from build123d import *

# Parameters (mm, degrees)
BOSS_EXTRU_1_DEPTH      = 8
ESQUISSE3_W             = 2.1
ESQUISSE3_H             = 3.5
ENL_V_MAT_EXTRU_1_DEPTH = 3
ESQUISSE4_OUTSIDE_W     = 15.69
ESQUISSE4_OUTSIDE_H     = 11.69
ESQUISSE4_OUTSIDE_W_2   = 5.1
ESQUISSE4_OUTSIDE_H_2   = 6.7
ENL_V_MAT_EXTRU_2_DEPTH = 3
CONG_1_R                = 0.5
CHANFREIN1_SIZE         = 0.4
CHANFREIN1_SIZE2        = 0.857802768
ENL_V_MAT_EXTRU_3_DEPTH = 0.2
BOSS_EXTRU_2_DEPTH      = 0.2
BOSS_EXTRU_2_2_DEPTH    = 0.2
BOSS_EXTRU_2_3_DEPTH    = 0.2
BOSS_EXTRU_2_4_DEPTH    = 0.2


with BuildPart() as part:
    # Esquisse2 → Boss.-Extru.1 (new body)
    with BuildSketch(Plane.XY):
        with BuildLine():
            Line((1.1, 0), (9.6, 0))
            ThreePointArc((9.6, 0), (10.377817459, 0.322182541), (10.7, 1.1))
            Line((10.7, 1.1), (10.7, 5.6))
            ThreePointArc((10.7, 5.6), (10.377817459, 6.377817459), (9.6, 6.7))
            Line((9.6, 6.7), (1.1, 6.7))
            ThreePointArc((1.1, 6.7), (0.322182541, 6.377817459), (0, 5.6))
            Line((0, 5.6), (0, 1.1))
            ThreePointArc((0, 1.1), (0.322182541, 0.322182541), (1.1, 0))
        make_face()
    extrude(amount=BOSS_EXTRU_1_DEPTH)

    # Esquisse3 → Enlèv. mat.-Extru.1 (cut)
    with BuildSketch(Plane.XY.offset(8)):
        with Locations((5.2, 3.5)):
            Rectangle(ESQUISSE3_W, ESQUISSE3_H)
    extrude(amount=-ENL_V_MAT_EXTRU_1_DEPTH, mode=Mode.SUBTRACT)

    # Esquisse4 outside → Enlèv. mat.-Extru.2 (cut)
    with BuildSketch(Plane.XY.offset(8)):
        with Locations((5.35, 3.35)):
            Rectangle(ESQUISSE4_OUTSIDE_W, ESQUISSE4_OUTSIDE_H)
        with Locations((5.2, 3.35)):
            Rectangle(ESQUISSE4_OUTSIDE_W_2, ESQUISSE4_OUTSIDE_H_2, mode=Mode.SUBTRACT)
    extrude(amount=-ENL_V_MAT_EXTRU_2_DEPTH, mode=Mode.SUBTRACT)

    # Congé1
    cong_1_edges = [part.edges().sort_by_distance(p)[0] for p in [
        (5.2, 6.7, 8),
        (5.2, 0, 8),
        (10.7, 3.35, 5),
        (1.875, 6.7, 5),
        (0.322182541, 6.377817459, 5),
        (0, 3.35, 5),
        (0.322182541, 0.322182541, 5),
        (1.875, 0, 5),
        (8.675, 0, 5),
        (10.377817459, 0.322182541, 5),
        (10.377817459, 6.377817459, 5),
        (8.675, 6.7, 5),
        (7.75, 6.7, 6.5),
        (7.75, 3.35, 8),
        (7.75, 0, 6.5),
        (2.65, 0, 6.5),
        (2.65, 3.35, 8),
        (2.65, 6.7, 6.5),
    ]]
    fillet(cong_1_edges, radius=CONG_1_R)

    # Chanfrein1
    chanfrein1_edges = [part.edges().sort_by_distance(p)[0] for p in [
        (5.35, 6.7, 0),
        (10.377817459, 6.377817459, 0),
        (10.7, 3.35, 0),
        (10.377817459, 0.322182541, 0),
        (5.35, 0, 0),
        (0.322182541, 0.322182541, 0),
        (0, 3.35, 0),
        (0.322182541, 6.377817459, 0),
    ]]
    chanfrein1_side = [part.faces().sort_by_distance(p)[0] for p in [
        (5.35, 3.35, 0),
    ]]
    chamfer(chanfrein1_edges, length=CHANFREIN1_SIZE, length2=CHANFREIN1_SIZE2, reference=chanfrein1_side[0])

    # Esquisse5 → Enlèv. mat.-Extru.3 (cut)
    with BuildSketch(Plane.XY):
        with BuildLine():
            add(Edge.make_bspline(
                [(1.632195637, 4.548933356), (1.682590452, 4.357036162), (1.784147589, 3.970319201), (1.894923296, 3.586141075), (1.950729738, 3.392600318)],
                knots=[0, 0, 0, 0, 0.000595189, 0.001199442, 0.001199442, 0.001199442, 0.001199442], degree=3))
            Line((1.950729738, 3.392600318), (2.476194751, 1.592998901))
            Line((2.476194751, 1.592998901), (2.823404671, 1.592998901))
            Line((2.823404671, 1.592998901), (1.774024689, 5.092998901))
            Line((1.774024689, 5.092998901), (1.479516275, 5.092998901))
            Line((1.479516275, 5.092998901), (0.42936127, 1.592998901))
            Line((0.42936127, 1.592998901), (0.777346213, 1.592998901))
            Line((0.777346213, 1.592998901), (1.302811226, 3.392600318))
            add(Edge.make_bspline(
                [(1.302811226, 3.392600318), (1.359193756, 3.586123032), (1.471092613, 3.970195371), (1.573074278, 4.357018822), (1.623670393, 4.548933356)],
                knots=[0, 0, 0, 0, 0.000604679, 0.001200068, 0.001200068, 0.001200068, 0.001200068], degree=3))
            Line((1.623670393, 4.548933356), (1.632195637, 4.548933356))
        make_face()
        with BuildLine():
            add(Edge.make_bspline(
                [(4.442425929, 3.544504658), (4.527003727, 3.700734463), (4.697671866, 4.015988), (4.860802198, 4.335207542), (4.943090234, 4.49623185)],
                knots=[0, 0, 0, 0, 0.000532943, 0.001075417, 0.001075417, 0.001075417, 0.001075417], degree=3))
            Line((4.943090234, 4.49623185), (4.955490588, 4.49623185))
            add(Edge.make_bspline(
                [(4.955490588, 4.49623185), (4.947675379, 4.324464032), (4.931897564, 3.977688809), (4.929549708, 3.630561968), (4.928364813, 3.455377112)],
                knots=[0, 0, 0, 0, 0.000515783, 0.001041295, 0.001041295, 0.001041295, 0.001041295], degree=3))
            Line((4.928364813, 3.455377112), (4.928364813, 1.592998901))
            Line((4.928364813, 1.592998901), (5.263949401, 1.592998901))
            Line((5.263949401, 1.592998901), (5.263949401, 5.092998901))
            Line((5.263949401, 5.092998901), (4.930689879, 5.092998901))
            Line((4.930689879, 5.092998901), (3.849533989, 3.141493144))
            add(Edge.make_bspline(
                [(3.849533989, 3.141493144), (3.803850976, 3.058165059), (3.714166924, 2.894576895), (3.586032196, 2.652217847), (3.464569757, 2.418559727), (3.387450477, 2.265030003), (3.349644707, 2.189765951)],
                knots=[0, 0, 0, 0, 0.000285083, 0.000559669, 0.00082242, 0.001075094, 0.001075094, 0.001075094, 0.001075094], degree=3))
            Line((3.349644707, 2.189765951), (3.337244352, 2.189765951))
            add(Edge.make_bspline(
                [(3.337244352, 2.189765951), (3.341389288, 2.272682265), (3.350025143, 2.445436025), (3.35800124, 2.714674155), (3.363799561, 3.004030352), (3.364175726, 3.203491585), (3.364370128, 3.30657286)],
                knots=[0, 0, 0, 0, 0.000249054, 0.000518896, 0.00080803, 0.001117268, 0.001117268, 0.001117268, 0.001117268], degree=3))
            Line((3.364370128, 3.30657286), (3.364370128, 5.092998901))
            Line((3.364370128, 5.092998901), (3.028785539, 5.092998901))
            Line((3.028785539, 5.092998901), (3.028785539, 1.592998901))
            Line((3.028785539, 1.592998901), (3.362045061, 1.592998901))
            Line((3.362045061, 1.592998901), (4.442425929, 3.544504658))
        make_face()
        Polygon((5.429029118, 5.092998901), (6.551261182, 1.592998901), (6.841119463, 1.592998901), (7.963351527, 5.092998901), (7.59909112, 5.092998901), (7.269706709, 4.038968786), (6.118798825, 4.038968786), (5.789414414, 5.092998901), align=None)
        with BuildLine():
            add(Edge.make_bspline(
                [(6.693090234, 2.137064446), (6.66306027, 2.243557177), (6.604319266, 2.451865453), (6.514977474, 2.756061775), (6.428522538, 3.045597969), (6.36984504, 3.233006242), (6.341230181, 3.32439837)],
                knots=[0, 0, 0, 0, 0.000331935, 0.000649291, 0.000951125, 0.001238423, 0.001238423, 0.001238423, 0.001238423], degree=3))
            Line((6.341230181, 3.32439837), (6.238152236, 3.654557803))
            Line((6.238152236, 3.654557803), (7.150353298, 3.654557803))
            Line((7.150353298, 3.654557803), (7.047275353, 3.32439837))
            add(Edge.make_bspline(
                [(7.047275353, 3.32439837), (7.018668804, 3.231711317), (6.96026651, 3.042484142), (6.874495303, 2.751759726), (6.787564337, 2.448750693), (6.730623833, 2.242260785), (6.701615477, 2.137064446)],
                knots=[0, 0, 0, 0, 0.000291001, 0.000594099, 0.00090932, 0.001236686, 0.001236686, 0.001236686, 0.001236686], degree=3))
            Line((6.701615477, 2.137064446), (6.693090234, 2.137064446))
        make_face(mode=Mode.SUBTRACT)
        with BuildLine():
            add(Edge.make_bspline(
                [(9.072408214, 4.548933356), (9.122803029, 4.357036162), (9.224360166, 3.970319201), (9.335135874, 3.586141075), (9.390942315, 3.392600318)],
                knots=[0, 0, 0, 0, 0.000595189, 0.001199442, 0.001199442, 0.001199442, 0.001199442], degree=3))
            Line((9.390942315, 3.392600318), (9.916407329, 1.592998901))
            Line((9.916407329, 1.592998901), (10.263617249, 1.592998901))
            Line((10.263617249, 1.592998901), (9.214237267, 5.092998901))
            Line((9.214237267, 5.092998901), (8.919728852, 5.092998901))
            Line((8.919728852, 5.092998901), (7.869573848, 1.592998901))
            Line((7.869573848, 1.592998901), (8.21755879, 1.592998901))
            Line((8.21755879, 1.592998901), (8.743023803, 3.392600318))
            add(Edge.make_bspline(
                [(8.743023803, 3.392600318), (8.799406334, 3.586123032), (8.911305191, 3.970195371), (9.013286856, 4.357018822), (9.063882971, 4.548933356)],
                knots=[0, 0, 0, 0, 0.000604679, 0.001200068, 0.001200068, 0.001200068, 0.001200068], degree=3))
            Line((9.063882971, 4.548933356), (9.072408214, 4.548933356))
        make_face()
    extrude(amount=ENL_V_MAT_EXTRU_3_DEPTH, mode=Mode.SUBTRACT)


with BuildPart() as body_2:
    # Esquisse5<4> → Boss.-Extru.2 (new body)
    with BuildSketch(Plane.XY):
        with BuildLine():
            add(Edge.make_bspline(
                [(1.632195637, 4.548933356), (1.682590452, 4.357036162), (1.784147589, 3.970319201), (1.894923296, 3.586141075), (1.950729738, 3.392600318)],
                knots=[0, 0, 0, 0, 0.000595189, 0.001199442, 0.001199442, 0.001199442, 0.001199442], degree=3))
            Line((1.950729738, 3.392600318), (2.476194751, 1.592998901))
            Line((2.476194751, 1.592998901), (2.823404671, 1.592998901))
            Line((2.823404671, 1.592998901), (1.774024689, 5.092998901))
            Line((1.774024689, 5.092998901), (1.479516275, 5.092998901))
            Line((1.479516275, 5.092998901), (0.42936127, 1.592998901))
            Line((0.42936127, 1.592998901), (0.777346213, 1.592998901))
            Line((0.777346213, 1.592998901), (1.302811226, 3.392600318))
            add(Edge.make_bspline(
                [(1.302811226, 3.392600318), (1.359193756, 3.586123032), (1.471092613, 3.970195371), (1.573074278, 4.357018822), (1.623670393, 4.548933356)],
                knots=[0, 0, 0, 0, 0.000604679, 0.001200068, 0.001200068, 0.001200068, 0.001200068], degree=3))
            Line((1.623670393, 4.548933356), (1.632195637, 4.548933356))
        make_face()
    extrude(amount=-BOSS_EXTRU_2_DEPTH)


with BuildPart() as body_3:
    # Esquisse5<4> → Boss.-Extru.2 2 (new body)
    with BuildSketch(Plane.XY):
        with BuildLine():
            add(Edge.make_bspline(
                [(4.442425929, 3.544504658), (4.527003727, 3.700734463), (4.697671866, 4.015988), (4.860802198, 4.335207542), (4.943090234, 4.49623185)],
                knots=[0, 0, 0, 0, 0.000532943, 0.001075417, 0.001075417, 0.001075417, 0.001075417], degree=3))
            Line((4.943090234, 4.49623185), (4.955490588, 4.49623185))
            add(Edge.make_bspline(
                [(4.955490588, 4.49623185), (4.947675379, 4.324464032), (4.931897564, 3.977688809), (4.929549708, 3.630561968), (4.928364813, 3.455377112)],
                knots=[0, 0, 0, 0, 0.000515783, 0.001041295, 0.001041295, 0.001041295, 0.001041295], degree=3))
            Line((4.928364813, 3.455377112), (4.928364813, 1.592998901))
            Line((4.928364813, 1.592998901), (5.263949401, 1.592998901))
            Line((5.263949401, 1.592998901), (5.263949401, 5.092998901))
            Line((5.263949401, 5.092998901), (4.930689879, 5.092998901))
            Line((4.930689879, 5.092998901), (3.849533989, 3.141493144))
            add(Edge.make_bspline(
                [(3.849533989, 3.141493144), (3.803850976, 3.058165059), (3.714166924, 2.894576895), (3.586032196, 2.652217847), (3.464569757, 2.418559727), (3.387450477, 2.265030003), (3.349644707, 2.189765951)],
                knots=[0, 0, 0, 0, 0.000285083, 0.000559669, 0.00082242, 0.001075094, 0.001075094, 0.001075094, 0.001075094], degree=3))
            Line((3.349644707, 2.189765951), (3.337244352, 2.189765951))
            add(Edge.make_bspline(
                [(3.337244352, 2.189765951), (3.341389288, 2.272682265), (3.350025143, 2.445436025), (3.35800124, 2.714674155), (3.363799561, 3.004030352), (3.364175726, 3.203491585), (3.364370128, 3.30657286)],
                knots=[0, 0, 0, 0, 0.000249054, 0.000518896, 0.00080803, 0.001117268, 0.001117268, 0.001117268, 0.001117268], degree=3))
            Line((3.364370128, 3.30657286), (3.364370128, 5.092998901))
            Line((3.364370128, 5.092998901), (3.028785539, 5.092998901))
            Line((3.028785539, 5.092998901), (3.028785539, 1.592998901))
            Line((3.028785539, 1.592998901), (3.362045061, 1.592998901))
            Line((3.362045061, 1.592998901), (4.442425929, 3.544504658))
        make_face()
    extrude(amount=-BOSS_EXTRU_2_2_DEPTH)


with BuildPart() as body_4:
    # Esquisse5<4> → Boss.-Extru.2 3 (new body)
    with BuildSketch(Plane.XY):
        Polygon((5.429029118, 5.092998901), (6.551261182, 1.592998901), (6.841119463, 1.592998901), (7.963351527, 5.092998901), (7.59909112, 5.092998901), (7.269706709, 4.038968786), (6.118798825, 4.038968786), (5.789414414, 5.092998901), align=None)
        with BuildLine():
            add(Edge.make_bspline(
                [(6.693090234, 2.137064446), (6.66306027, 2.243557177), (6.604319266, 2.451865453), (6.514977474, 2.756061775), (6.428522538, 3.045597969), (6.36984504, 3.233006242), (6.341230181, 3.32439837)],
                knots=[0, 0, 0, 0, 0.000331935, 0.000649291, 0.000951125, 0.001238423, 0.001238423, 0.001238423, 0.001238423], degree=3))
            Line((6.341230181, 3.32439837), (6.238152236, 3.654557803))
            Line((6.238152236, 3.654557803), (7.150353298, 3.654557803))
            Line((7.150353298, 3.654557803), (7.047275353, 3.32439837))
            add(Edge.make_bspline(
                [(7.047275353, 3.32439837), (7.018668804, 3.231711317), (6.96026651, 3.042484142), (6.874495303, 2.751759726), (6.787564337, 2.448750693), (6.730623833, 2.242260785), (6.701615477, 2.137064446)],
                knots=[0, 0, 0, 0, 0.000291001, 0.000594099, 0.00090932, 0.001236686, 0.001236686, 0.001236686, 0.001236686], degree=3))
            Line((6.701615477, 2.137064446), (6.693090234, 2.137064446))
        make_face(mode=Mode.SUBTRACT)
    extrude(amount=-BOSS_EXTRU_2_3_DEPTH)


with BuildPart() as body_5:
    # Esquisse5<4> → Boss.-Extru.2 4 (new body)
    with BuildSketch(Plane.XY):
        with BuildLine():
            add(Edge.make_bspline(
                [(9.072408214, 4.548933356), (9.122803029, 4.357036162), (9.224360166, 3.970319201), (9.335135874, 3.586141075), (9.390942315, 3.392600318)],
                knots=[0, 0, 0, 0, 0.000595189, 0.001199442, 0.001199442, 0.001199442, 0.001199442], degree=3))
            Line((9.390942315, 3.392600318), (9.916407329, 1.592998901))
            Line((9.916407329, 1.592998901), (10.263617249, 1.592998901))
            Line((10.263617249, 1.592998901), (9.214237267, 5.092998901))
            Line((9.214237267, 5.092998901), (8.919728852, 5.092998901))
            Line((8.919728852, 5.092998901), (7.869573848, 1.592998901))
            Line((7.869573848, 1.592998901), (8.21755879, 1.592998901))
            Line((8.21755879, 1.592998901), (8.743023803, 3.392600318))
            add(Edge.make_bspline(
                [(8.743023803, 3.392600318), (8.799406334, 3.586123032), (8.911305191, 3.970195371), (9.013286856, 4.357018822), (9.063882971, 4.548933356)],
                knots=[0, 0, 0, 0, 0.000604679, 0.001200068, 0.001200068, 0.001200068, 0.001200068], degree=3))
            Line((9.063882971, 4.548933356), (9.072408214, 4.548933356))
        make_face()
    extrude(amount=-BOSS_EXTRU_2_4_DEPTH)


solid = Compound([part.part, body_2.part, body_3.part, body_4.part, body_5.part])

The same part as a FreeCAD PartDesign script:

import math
import FreeCAD as App
import Part
import Sketcher


def edges_at(feature, points):
    """Names of the edges that pass closest to the given points."""
    edges = feature.Shape.Edges
    near = lambda p: min(range(len(edges)), key=lambda i: edges[i].distToShape(Part.Vertex(*p))[0])
    return sorted({f"Edge{near(p) + 1}" for p in points})

doc = App.newDocument("Part")
params = doc.addObject("Spreadsheet::Sheet", "Params")
for row, (alias, value) in enumerate([
    ("sketch1_radius", "1.1 mm"),
    ("sketch1_width", "8.5 mm"),
    ("sketch1_height", "4.5 mm"),
    ("pad1_length", "8 mm"),
    ("sketch2_width", "2.1 mm"),
    ("sketch2_height", "3.5 mm"),
    ("pocket1_length", "3 mm"),
    ("sketch3_width", "5.1 mm"),
    ("sketch3_height", "6.7 mm"),
    ("sketch3_width2", "15.69 mm"),
    ("sketch3_height2", "11.69 mm"),
    ("pocket2_length", "3 mm"),
    ("fillet_radius", "0.5 mm"),
    ("chamfer_size", "0.4 mm"),
    ("chamfer_size2", "0.857803 mm"),
    ("sketch4_height", "3.5 mm"),
    ("sketch4_height2", "3.5 mm"),
    ("pocket3_length", "0.2 mm"),
    ("pad2_length", "0.2 mm"),
    ("sketch6_height", "3.5 mm"),
    ("pad3_length", "0.2 mm"),
    ("pad4_length", "0.2 mm"),
    ("pad5_length", "0.2 mm"),
], start=1):
    params.set(f"A{row}", alias)
    params.set(f"B{row}", "=" + value)
    params.setAlias(f"B{row}", alias)

body = doc.addObject("PartDesign::Body", "Body")

# Sketch on XY plane
sketch1 = doc.addObject("Sketcher::SketchObject", "Sketch")
body.addObject(sketch1)
sketch1.AttachmentSupport = (doc.XY_Plane, [""])
sketch1.MapMode = "FlatFace"
sketch1.addGeometry([
    Part.LineSegment(App.Vector(1.1, 0, 0), App.Vector(9.6, 0, 0)),  # 0
    Part.ArcOfCircle(Part.Circle(App.Vector(9.6, 1.1, 0), App.Vector(0, 0, 1), 1.1), math.radians(-90), math.radians(0)),  # 1
    Part.LineSegment(App.Vector(10.7, 1.1, 0), App.Vector(10.7, 5.6, 0)),  # 2
    Part.ArcOfCircle(Part.Circle(App.Vector(9.6, 5.6, 0), App.Vector(0, 0, 1), 1.1), math.radians(0), math.radians(90)),  # 3
    Part.LineSegment(App.Vector(9.6, 6.7, 0), App.Vector(1.1, 6.7, 0)),  # 4
    Part.ArcOfCircle(Part.Circle(App.Vector(1.1, 5.6, 0), App.Vector(0, 0, 1), 1.1), math.radians(90), math.radians(180)),  # 5
    Part.LineSegment(App.Vector(0, 5.6, 0), App.Vector(0, 1.1, 0)),  # 6
    Part.ArcOfCircle(Part.Circle(App.Vector(1.1, 1.1, 0), App.Vector(0, 0, 1), 1.1), math.radians(-180), math.radians(-90)),  # 7
], False)
sketch1.addConstraint([
    Sketcher.Constraint("Tangent", 0, 2, 1, 1),
    Sketcher.Constraint("Tangent", 1, 2, 2, 1),
    Sketcher.Constraint("Tangent", 2, 2, 3, 1),
    Sketcher.Constraint("Tangent", 3, 2, 4, 1),
    Sketcher.Constraint("Tangent", 4, 2, 5, 1),
    Sketcher.Constraint("Tangent", 5, 2, 6, 1),
    Sketcher.Constraint("Tangent", 6, 2, 7, 1),
    Sketcher.Constraint("Tangent", 7, 2, 0, 1),
    Sketcher.Constraint("Horizontal", 0),
    Sketcher.Constraint("Vertical", 2),
    Sketcher.Constraint("Horizontal", 4),
    Sketcher.Constraint("Vertical", 6),
    Sketcher.Constraint("Equal", 1, 3),
    Sketcher.Constraint("Equal", 3, 5),
    Sketcher.Constraint("Equal", 5, 7),
    Sketcher.Constraint("PointOnObject", 0, 2, -1),
    Sketcher.Constraint("PointOnObject", 5, 2, -2),
    Sketcher.Constraint("Radius", 1, 1.1),
    Sketcher.Constraint("DistanceX", 0, 1, 0, 2, 8.5),
    Sketcher.Constraint("DistanceY", 2, 1, 2, 2, 4.5),
])
sketch1.setExpression("Constraints[17]", "Params.sketch1_radius")
sketch1.setExpression("Constraints[18]", "Params.sketch1_width")
sketch1.setExpression("Constraints[19]", "Params.sketch1_height")
pad1 = doc.addObject("PartDesign::Pad", "Pad")
body.addObject(pad1)
pad1.Profile = sketch1
pad1.setExpression("Length", "Params.pad1_length")

# Sketch on XY plane
sketch2 = doc.addObject("Sketcher::SketchObject", "Sketch001")
body.addObject(sketch2)
sketch2.AttachmentSupport = (doc.XY_Plane, [""])
sketch2.MapMode = "FlatFace"
sketch2.AttachmentOffset = App.Placement(App.Vector(0, 0, 8), App.Rotation())
sketch2.addGeometry([
    Part.LineSegment(App.Vector(4.15, 5.25, 0), App.Vector(4.15, 1.75, 0)),
    Part.LineSegment(App.Vector(4.15, 1.75, 0), App.Vector(6.25, 1.75, 0)),
    Part.LineSegment(App.Vector(6.25, 1.75, 0), App.Vector(6.25, 5.25, 0)),
    Part.LineSegment(App.Vector(6.25, 5.25, 0), App.Vector(4.15, 5.25, 0)),
], False)
sketch2.addConstraint([
    Sketcher.Constraint("Coincident", 0, 2, 1, 1),
    Sketcher.Constraint("Coincident", 1, 2, 2, 1),
    Sketcher.Constraint("Coincident", 2, 2, 3, 1),
    Sketcher.Constraint("Coincident", 3, 2, 0, 1),
    Sketcher.Constraint("Vertical", 0),
    Sketcher.Constraint("Horizontal", 1),
    Sketcher.Constraint("Vertical", 2),
    Sketcher.Constraint("Horizontal", 3),
    Sketcher.Constraint("DistanceX", 1, 1, 1, 2, 2.1),
    Sketcher.Constraint("DistanceY", 0, 2, 0, 1, 3.5),
    Sketcher.Constraint("DistanceX", -1, 1, 0, 2, 4.15),
    Sketcher.Constraint("DistanceY", -1, 1, 0, 2, 1.75),
])
sketch2.setExpression("Constraints[8]", "Params.sketch2_width")
sketch2.setExpression("Constraints[9]", "Params.sketch2_height")
pocket1 = doc.addObject("PartDesign::Pocket", "Pocket")
body.addObject(pocket1)
pocket1.Profile = sketch2
pocket1.setExpression("Length", "Params.pocket1_length")

# Sketch on XY plane
sketch3 = doc.addObject("Sketcher::SketchObject", "Sketch002")
body.addObject(sketch3)
sketch3.AttachmentSupport = (doc.XY_Plane, [""])
sketch3.MapMode = "FlatFace"
sketch3.AttachmentOffset = App.Placement(App.Vector(0, 0, 8), App.Rotation())
sketch3.addGeometry([
    Part.LineSegment(App.Vector(-2.495, 9.195, 0), App.Vector(-2.495, -2.495, 0)),  # 0
    Part.LineSegment(App.Vector(-2.495, -2.495, 0), App.Vector(13.195, -2.495, 0)),  # 1
    Part.LineSegment(App.Vector(13.195, -2.495, 0), App.Vector(13.195, 9.195, 0)),  # 2
    Part.LineSegment(App.Vector(13.195, 9.195, 0), App.Vector(-2.495, 9.195, 0)),  # 3
    Part.LineSegment(App.Vector(7.75, 0, 0), App.Vector(2.65, 0, 0)),  # 4
    Part.LineSegment(App.Vector(2.65, 0, 0), App.Vector(2.65, 6.7, 0)),  # 5
    Part.LineSegment(App.Vector(2.65, 6.7, 0), App.Vector(7.75, 6.7, 0)),  # 6
    Part.LineSegment(App.Vector(7.75, 6.7, 0), App.Vector(7.75, 0, 0)),  # 7
], False)
sketch3.addConstraint([
    Sketcher.Constraint("Coincident", 0, 2, 1, 1),
    Sketcher.Constraint("Coincident", 1, 2, 2, 1),
    Sketcher.Constraint("Coincident", 2, 2, 3, 1),
    Sketcher.Constraint("Coincident", 3, 2, 0, 1),
    Sketcher.Constraint("Coincident", 4, 2, 5, 1),
    Sketcher.Constraint("Coincident", 5, 2, 6, 1),
    Sketcher.Constraint("Coincident", 6, 2, 7, 1),
    Sketcher.Constraint("Coincident", 7, 2, 4, 1),
    Sketcher.Constraint("Vertical", 0),
    Sketcher.Constraint("Horizontal", 1),
    Sketcher.Constraint("Vertical", 2),
    Sketcher.Constraint("Horizontal", 3),
    Sketcher.Constraint("Horizontal", 4),
    Sketcher.Constraint("Vertical", 5),
    Sketcher.Constraint("Horizontal", 6),
    Sketcher.Constraint("Vertical", 7),
    Sketcher.Constraint("PointOnObject", 4, 2, -1),
    Sketcher.Constraint("DistanceX", 4, 2, 4, 1, 5.1),
    Sketcher.Constraint("DistanceY", 5, 1, 5, 2, 6.7),
    Sketcher.Constraint("DistanceX", 1, 1, 1, 2, 15.69),
    Sketcher.Constraint("DistanceY", 0, 2, 0, 1, 11.69),
    Sketcher.Constraint("DistanceX", -1, 1, 4, 2, 2.65),
    Sketcher.Constraint("DistanceX", 0, 2, -1, 1, 2.495),
    Sketcher.Constraint("DistanceY", 0, 2, -1, 1, 2.495),
])
sketch3.setExpression("Constraints[17]", "Params.sketch3_width")
sketch3.setExpression("Constraints[18]", "Params.sketch3_height")
sketch3.setExpression("Constraints[19]", "Params.sketch3_width2")
sketch3.setExpression("Constraints[20]", "Params.sketch3_height2")
pocket2 = doc.addObject("PartDesign::Pocket", "Pocket001")
body.addObject(pocket2)
pocket2.Profile = sketch3
pocket2.setExpression("Length", "Params.pocket2_length")
doc.recompute()

fillet = doc.addObject("PartDesign::Fillet", "Fillet")
body.addObject(fillet)
fillet.Base = (pocket2, edges_at(pocket2, [
    (5.2, 6.7, 8),
    (5.2, 0, 8),
    (10.7, 3.35, 5),
    (1.875, 6.7, 5),
    (0.322, 6.378, 5),
    (0, 3.35, 5),
    (0.322, 0.322, 5),
    (1.875, 0, 5),
    (8.675, 0, 5),
    (10.378, 0.322, 5),
    (10.378, 6.378, 5),
    (8.675, 6.7, 5),
    (7.75, 6.7, 6.5),
    (7.75, 3.35, 8),
    (7.75, 0, 6.5),
    (2.65, 0, 6.5),
    (2.65, 3.35, 8),
    (2.65, 6.7, 6.5),
]))
fillet.setExpression("Radius", "Params.fillet_radius")
doc.recompute()

chamfer = doc.addObject("PartDesign::Chamfer", "Chamfer")
body.addObject(chamfer)
chamfer.Base = (fillet, edges_at(fillet, [
    (5.35, 6.7, 0),
    (10.378, 6.378, 0),
    (10.7, 3.35, 0),
    (10.378, 0.322, 0),
    (5.35, 0, 0),
    (0.322, 0.322, 0),
    (0, 3.35, 0),
    (0.322, 6.378, 0),
]))
chamfer.ChamferType = "Two distances"
chamfer.setExpression("Size", "Params.chamfer_size")
chamfer.setExpression("Size2", "Params.chamfer_size2")

# Sketch on XY plane
sketch4 = doc.addObject("Sketcher::SketchObject", "Sketch003")
body.addObject(sketch4)
sketch4.AttachmentSupport = (doc.XY_Plane, [""])
sketch4.MapMode = "FlatFace"
sketch4.addGeometry([
    Part.BSplineCurve([App.Vector(1.632196, 4.548933, 0), App.Vector(1.68259, 4.357036, 0), App.Vector(1.784148, 3.970319, 0), App.Vector(1.894923, 3.586141, 0), App.Vector(1.95073, 3.3926, 0)], [4, 1, 4], [0, 0.000595189, 0.001199442], False, 3, [1, 1, 1, 1, 1], False),  # 0
    Part.LineSegment(App.Vector(1.95073, 3.3926, 0), App.Vector(2.476195, 1.592999, 0)),  # 1
    Part.LineSegment(App.Vector(2.476195, 1.592999, 0), App.Vector(2.823405, 1.592999, 0)),  # 2
    Part.LineSegment(App.Vector(2.823405, 1.592999, 0), App.Vector(1.774025, 5.092999, 0)),  # 3
    Part.LineSegment(App.Vector(1.774025, 5.092999, 0), App.Vector(1.479516, 5.092999, 0)),  # 4
    Part.LineSegment(App.Vector(1.479516, 5.092999, 0), App.Vector(0.429361, 1.592999, 0)),  # 5
    Part.LineSegment(App.Vector(0.429361, 1.592999, 0), App.Vector(0.777346, 1.592999, 0)),  # 6
    Part.LineSegment(App.Vector(0.777346, 1.592999, 0), App.Vector(1.302811, 3.3926, 0)),  # 7
    Part.BSplineCurve([App.Vector(1.302811, 3.3926, 0), App.Vector(1.359194, 3.586123, 0), App.Vector(1.471093, 3.970195, 0), App.Vector(1.573074, 4.357019, 0), App.Vector(1.62367, 4.548933, 0)], [4, 1, 4], [0, 0.000604679, 0.001200068], False, 3, [1, 1, 1, 1, 1], False),  # 8
    Part.LineSegment(App.Vector(1.62367, 4.548933, 0), App.Vector(1.632196, 4.548933, 0)),  # 9
    Part.BSplineCurve([App.Vector(4.442426, 3.544505, 0), App.Vector(4.527004, 3.700734, 0), App.Vector(4.697672, 4.015988, 0), App.Vector(4.860802, 4.335208, 0), App.Vector(4.94309, 4.496232, 0)], [4, 1, 4], [0, 0.000532943, 0.001075417], False, 3, [1, 1, 1, 1, 1], False),  # 10
    Part.LineSegment(App.Vector(4.94309, 4.496232, 0), App.Vector(4.955491, 4.496232, 0)),  # 11
    Part.BSplineCurve([App.Vector(4.955491, 4.496232, 0), App.Vector(4.947675, 4.324464, 0), App.Vector(4.931898, 3.977689, 0), App.Vector(4.92955, 3.630562, 0), App.Vector(4.928365, 3.455377, 0)], [4, 1, 4], [0, 0.000515783, 0.001041295], False, 3, [1, 1, 1, 1, 1], False),  # 12
    Part.LineSegment(App.Vector(4.928365, 3.455377, 0), App.Vector(4.928365, 1.592999, 0)),  # 13
    Part.LineSegment(App.Vector(4.928365, 1.592999, 0), App.Vector(5.263949, 1.592999, 0)),  # 14
    Part.LineSegment(App.Vector(5.263949, 1.592999, 0), App.Vector(5.263949, 5.092999, 0)),  # 15
    Part.LineSegment(App.Vector(5.263949, 5.092999, 0), App.Vector(4.93069, 5.092999, 0)),  # 16
    Part.LineSegment(App.Vector(4.93069, 5.092999, 0), App.Vector(3.849534, 3.141493, 0)),  # 17
    Part.BSplineCurve([App.Vector(3.849534, 3.141493, 0), App.Vector(3.803851, 3.058165, 0), App.Vector(3.714167, 2.894577, 0), App.Vector(3.586032, 2.652218, 0), App.Vector(3.46457, 2.41856, 0), App.Vector(3.38745, 2.26503, 0), App.Vector(3.349645, 2.189766, 0)], [4, 1, 1, 1, 4], [0, 0.000285083, 0.000559669, 0.00082242, 0.001075094], False, 3, [1, 1, 1, 1, 1, 1, 1], False),  # 18
    Part.LineSegment(App.Vector(3.349645, 2.189766, 0), App.Vector(3.337244, 2.189766, 0)),  # 19
    Part.BSplineCurve([App.Vector(3.337244, 2.189766, 0), App.Vector(3.341389, 2.272682, 0), App.Vector(3.350025, 2.445436, 0), App.Vector(3.358001, 2.714674, 0), App.Vector(3.3638, 3.00403, 0), App.Vector(3.364176, 3.203492, 0), App.Vector(3.36437, 3.306573, 0)], [4, 1, 1, 1, 4], [0, 0.000249054, 0.000518896, 0.00080803, 0.001117268], False, 3, [1, 1, 1, 1, 1, 1, 1], False),  # 20
    Part.LineSegment(App.Vector(3.36437, 3.306573, 0), App.Vector(3.36437, 5.092999, 0)),  # 21
    Part.LineSegment(App.Vector(3.36437, 5.092999, 0), App.Vector(3.028786, 5.092999, 0)),  # 22
    Part.LineSegment(App.Vector(3.028786, 5.092999, 0), App.Vector(3.028786, 1.592999, 0)),  # 23
    Part.LineSegment(App.Vector(3.028786, 1.592999, 0), App.Vector(3.362045, 1.592999, 0)),  # 24
    Part.LineSegment(App.Vector(3.362045, 1.592999, 0), App.Vector(4.442426, 3.544505, 0)),  # 25
    Part.LineSegment(App.Vector(5.429029, 5.092999, 0), App.Vector(6.551261, 1.592999, 0)),  # 26
    Part.LineSegment(App.Vector(6.551261, 1.592999, 0), App.Vector(6.841119, 1.592999, 0)),  # 27
    Part.LineSegment(App.Vector(6.841119, 1.592999, 0), App.Vector(7.963352, 5.092999, 0)),  # 28
    Part.LineSegment(App.Vector(7.963352, 5.092999, 0), App.Vector(7.599091, 5.092999, 0)),  # 29
    Part.LineSegment(App.Vector(7.599091, 5.092999, 0), App.Vector(7.269707, 4.038969, 0)),  # 30
    Part.LineSegment(App.Vector(7.269707, 4.038969, 0), App.Vector(6.118799, 4.038969, 0)),  # 31
    Part.LineSegment(App.Vector(6.118799, 4.038969, 0), App.Vector(5.789414, 5.092999, 0)),  # 32
    Part.LineSegment(App.Vector(5.789414, 5.092999, 0), App.Vector(5.429029, 5.092999, 0)),  # 33
    Part.LineSegment(App.Vector(6.701615, 2.137064, 0), App.Vector(6.69309, 2.137064, 0)),  # 34
    Part.BSplineCurve([App.Vector(6.69309, 2.137064, 0), App.Vector(6.66306, 2.243557, 0), App.Vector(6.604319, 2.451865, 0), App.Vector(6.514977, 2.756062, 0), App.Vector(6.428523, 3.045598, 0), App.Vector(6.369845, 3.233006, 0), App.Vector(6.34123, 3.324398, 0)], [4, 1, 1, 1, 4], [0, 0.000331935, 0.000649291, 0.000951125, 0.001238423], False, 3, [1, 1, 1, 1, 1, 1, 1], False),  # 35
    Part.LineSegment(App.Vector(6.34123, 3.324398, 0), App.Vector(6.238152, 3.654558, 0)),  # 36
    Part.LineSegment(App.Vector(6.238152, 3.654558, 0), App.Vector(7.150353, 3.654558, 0)),  # 37
    Part.LineSegment(App.Vector(7.150353, 3.654558, 0), App.Vector(7.047275, 3.324398, 0)),  # 38
    Part.BSplineCurve([App.Vector(7.047275, 3.324398, 0), App.Vector(7.018669, 3.231711, 0), App.Vector(6.960267, 3.042484, 0), App.Vector(6.874495, 2.75176, 0), App.Vector(6.787564, 2.448751, 0), App.Vector(6.730624, 2.242261, 0), App.Vector(6.701615, 2.137064, 0)], [4, 1, 1, 1, 4], [0, 0.000291001, 0.000594099, 0.00090932, 0.001236686], False, 3, [1, 1, 1, 1, 1, 1, 1], False),  # 39
    Part.BSplineCurve([App.Vector(9.072408, 4.548933, 0), App.Vector(9.122803, 4.357036, 0), App.Vector(9.22436, 3.970319, 0), App.Vector(9.335136, 3.586141, 0), App.Vector(9.390942, 3.3926, 0)], [4, 1, 4], [0, 0.000595189, 0.001199442], False, 3, [1, 1, 1, 1, 1], False),  # 40
    Part.LineSegment(App.Vector(9.390942, 3.3926, 0), App.Vector(9.916407, 1.592999, 0)),  # 41
    Part.LineSegment(App.Vector(9.916407, 1.592999, 0), App.Vector(10.263617, 1.592999, 0)),  # 42
    Part.LineSegment(App.Vector(10.263617, 1.592999, 0), App.Vector(9.214237, 5.092999, 0)),  # 43
    Part.LineSegment(App.Vector(9.214237, 5.092999, 0), App.Vector(8.919729, 5.092999, 0)),  # 44
    Part.LineSegment(App.Vector(8.919729, 5.092999, 0), App.Vector(7.869574, 1.592999, 0)),  # 45
    Part.LineSegment(App.Vector(7.869574, 1.592999, 0), App.Vector(8.217559, 1.592999, 0)),  # 46
    Part.LineSegment(App.Vector(8.217559, 1.592999, 0), App.Vector(8.743024, 3.3926, 0)),  # 47
    Part.BSplineCurve([App.Vector(8.743024, 3.3926, 0), App.Vector(8.799406, 3.586123, 0), App.Vector(8.911305, 3.970195, 0), App.Vector(9.013287, 4.357019, 0), App.Vector(9.063883, 4.548933, 0)], [4, 1, 4], [0, 0.000604679, 0.001200068], False, 3, [1, 1, 1, 1, 1], False),  # 48
    Part.LineSegment(App.Vector(9.063883, 4.548933, 0), App.Vector(9.072408, 4.548933, 0)),  # 49
], False)
sketch4.addConstraint([
    Sketcher.Constraint("Block", 0),
    Sketcher.Constraint("Block", 8),
    Sketcher.Constraint("Block", 10),
    Sketcher.Constraint("Block", 12),
    Sketcher.Constraint("Block", 18),
    Sketcher.Constraint("Block", 20),
    Sketcher.Constraint("Block", 35),
    Sketcher.Constraint("Block", 39),
    Sketcher.Constraint("Block", 40),
    Sketcher.Constraint("Block", 48),
    Sketcher.Constraint("Coincident", 0, 2, 1, 1),
    Sketcher.Constraint("Coincident", 1, 2, 2, 1),
    Sketcher.Constraint("Coincident", 2, 2, 3, 1),
    Sketcher.Constraint("Coincident", 3, 2, 4, 1),
    Sketcher.Constraint("Coincident", 4, 2, 5, 1),
    Sketcher.Constraint("Coincident", 5, 2, 6, 1),
    Sketcher.Constraint("Coincident", 6, 2, 7, 1),
    Sketcher.Constraint("Coincident", 7, 2, 8, 1),
    Sketcher.Constraint("Coincident", 8, 2, 9, 1),
    Sketcher.Constraint("Coincident", 9, 2, 0, 1),
    Sketcher.Constraint("Coincident", 10, 2, 11, 1),
    Sketcher.Constraint("Coincident", 11, 2, 12, 1),
    Sketcher.Constraint("Coincident", 12, 2, 13, 1),
    Sketcher.Constraint("Coincident", 13, 2, 14, 1),
    Sketcher.Constraint("Coincident", 14, 2, 15, 1),
    Sketcher.Constraint("Coincident", 15, 2, 16, 1),
    Sketcher.Constraint("Coincident", 16, 2, 17, 1),
    Sketcher.Constraint("Coincident", 17, 2, 18, 1),
    Sketcher.Constraint("Coincident", 18, 2, 19, 1),
    Sketcher.Constraint("Coincident", 19, 2, 20, 1),
    Sketcher.Constraint("Coincident", 20, 2, 21, 1),
    Sketcher.Constraint("Coincident", 21, 2, 22, 1),
    Sketcher.Constraint("Coincident", 22, 2, 23, 1),
    Sketcher.Constraint("Coincident", 23, 2, 24, 1),
    Sketcher.Constraint("Coincident", 24, 2, 25, 1),
    Sketcher.Constraint("Coincident", 25, 2, 10, 1),
    Sketcher.Constraint("Coincident", 26, 2, 27, 1),
    Sketcher.Constraint("Coincident", 27, 2, 28, 1),
    Sketcher.Constraint("Coincident", 28, 2, 29, 1),
    Sketcher.Constraint("Coincident", 29, 2, 30, 1),
    Sketcher.Constraint("Coincident", 30, 2, 31, 1),
    Sketcher.Constraint("Coincident", 31, 2, 32, 1),
    Sketcher.Constraint("Coincident", 32, 2, 33, 1),
    Sketcher.Constraint("Coincident", 33, 2, 26, 1),
    Sketcher.Constraint("Coincident", 34, 2, 35, 1),
    Sketcher.Constraint("Coincident", 35, 2, 36, 1),
    Sketcher.Constraint("Coincident", 36, 2, 37, 1),
    Sketcher.Constraint("Coincident", 37, 2, 38, 1),
    Sketcher.Constraint("Coincident", 38, 2, 39, 1),
    Sketcher.Constraint("Coincident", 39, 2, 34, 1),
    Sketcher.Constraint("Coincident", 40, 2, 41, 1),
    Sketcher.Constraint("Coincident", 41, 2, 42, 1),
    Sketcher.Constraint("Coincident", 42, 2, 43, 1),
    Sketcher.Constraint("Coincident", 43, 2, 44, 1),
    Sketcher.Constraint("Coincident", 44, 2, 45, 1),
    Sketcher.Constraint("Coincident", 45, 2, 46, 1),
    Sketcher.Constraint("Coincident", 46, 2, 47, 1),
    Sketcher.Constraint("Coincident", 47, 2, 48, 1),
    Sketcher.Constraint("Coincident", 48, 2, 49, 1),
    Sketcher.Constraint("Coincident", 49, 2, 40, 1),
    Sketcher.Constraint("Horizontal", 2),
    Sketcher.Constraint("Horizontal", 4),
    Sketcher.Constraint("Horizontal", 6),
    Sketcher.Constraint("Vertical", 13),
    Sketcher.Constraint("Horizontal", 14),
    Sketcher.Constraint("Vertical", 15),
    Sketcher.Constraint("Horizontal", 16),
    Sketcher.Constraint("Vertical", 21),
    Sketcher.Constraint("Horizontal", 22),
    Sketcher.Constraint("Vertical", 23),
    Sketcher.Constraint("Horizontal", 24),
    Sketcher.Constraint("Horizontal", 27),
    Sketcher.Constraint("Horizontal", 29),
    Sketcher.Constraint("Horizontal", 31),
    Sketcher.Constraint("Horizontal", 33),
    Sketcher.Constraint("Horizontal", 37),
    Sketcher.Constraint("Horizontal", 42),
    Sketcher.Constraint("Horizontal", 44),
    Sketcher.Constraint("Horizontal", 46),
    Sketcher.Constraint("DistanceY", 15, 1, 15, 2, 3.5),
    Sketcher.Constraint("DistanceY", 23, 2, 23, 1, 3.5),
    Sketcher.Constraint("DistanceY", 1, 2, 3, 2, 3.5),
    Sketcher.Constraint("DistanceY", 5, 2, 4, 2, 3.5),
    Sketcher.Constraint("DistanceY", 27, 2, 28, 2, 3.5),
    Sketcher.Constraint("DistanceX", 37, 1, 37, 2, 0.912201),
    Sketcher.Constraint("DistanceY", -1, 1, 1, 2, 1.592999),
    Sketcher.Constraint("DistanceY", -1, 1, 13, 2, 1.592999),
    Sketcher.Constraint("DistanceY", -1, 1, 21, 2, 5.092999),
    Sketcher.Constraint("DistanceY", -1, 1, 26, 2, 1.592999),
    Sketcher.Constraint("DistanceY", -1, 1, 32, 2, 5.092999),
    Sketcher.Constraint("DistanceY", -1, 1, 41, 2, 1.592999),
    Sketcher.Constraint("DistanceY", -1, 1, 43, 2, 5.092999),
    Sketcher.Constraint("DistanceY", -1, 1, 45, 2, 1.592999),
    Sketcher.Constraint("DistanceX", 9, 2, 1, 2, 0.843999),
    Sketcher.Constraint("DistanceX", 2, 1, 2, 2, 0.34721),
    Sketcher.Constraint("DistanceX", 4, 2, 4, 1, 0.294508),
    Sketcher.Constraint("DistanceX", 16, 2, 16, 1, 0.33326),
    Sketcher.Constraint("DistanceX", 24, 1, 24, 2, 0.33326),
    Sketcher.Constraint("DistanceX", 27, 1, 27, 2, 0.289858),
    Sketcher.Constraint("DistanceX", 29, 2, 29, 1, 0.36426),
    Sketcher.Constraint("DistanceX", 42, 1, 42, 2, 0.34721),
    Sketcher.Constraint("DistanceX", 44, 2, 44, 1, 0.294508),
    Sketcher.Constraint("DistanceX", -1, 1, 31, 2, 6.118799),
    Sketcher.Constraint("DistanceX", 16, 2, 11, 2, 0.024801),
    Sketcher.Constraint("DistanceX", 19, 2, 24, 2, 0.024801),
    Sketcher.Constraint("DistanceX", 16, 2, 29, 2, 2.668401),
    Sketcher.Constraint("DistanceX", 38, 2, 45, 2, 0.822298),
    Sketcher.Constraint("Distance", 3, 3.653929),
    Sketcher.Constraint("Distance", 5, 3.654152),
    Sketcher.Constraint("Distance", 43, 3.653929),
    Sketcher.Constraint("Distance", 45, 3.654152),
    Sketcher.Constraint("DistanceX", 6, 1, 6, 2, 0.347985),
    Sketcher.Constraint("DistanceX", 31, 2, 31, 1, 1.150908),
    Sketcher.Constraint("DistanceX", 33, 2, 33, 1, 0.360385),
    Sketcher.Constraint("DistanceX", 46, 1, 46, 2, 0.347985),
    Sketcher.Constraint("DistanceX", -1, 1, 26, 2, 6.551261),
    Sketcher.Constraint("DistanceY", -1, 1, 30, 2, 4.038969),
    Sketcher.Constraint("DistanceX", -1, 1, 33, 2, 5.429029),
    Sketcher.Constraint("DistanceY", 36, 2, 31, 2, 0.384411),
    Sketcher.Constraint("DistanceX", 11, 2, 36, 2, 1.282662),
])
sketch4.setExpression("Constraints[79]", "Params.sketch4_height")
sketch4.setExpression("Constraints[80]", "Params.sketch4_height2")
pocket3 = doc.addObject("PartDesign::Pocket", "Pocket002")
body.addObject(pocket3)
pocket3.Profile = sketch4
pocket3.setExpression("Length", "Params.pocket3_length")
pocket3.Reversed = True
body2 = doc.addObject("PartDesign::Body", "Body001")

# Sketch on XY plane
sketch5 = doc.addObject("Sketcher::SketchObject", "Sketch004")
body2.addObject(sketch5)
sketch5.AttachmentSupport = (doc.getObject("XY_Plane001"), [""])
sketch5.MapMode = "FlatFace"
sketch5.addGeometry([
    Part.BSplineCurve([App.Vector(1.632196, 4.548933, 0), App.Vector(1.68259, 4.357036, 0), App.Vector(1.784148, 3.970319, 0), App.Vector(1.894923, 3.586141, 0), App.Vector(1.95073, 3.3926, 0)], [4, 1, 4], [0, 0.000595189, 0.001199442], False, 3, [1, 1, 1, 1, 1], False),  # 0
    Part.LineSegment(App.Vector(1.95073, 3.3926, 0), App.Vector(2.476195, 1.592999, 0)),  # 1
    Part.LineSegment(App.Vector(2.476195, 1.592999, 0), App.Vector(2.823405, 1.592999, 0)),  # 2
    Part.LineSegment(App.Vector(2.823405, 1.592999, 0), App.Vector(1.774025, 5.092999, 0)),  # 3
    Part.LineSegment(App.Vector(1.774025, 5.092999, 0), App.Vector(1.479516, 5.092999, 0)),  # 4
    Part.LineSegment(App.Vector(1.479516, 5.092999, 0), App.Vector(0.429361, 1.592999, 0)),  # 5
    Part.LineSegment(App.Vector(0.429361, 1.592999, 0), App.Vector(0.777346, 1.592999, 0)),  # 6
    Part.LineSegment(App.Vector(0.777346, 1.592999, 0), App.Vector(1.302811, 3.3926, 0)),  # 7
    Part.BSplineCurve([App.Vector(1.302811, 3.3926, 0), App.Vector(1.359194, 3.586123, 0), App.Vector(1.471093, 3.970195, 0), App.Vector(1.573074, 4.357019, 0), App.Vector(1.62367, 4.548933, 0)], [4, 1, 4], [0, 0.000604679, 0.001200068], False, 3, [1, 1, 1, 1, 1], False),  # 8
    Part.LineSegment(App.Vector(1.62367, 4.548933, 0), App.Vector(1.632196, 4.548933, 0)),  # 9
], False)
sketch5.addConstraint([
    Sketcher.Constraint("Block", 0),
    Sketcher.Constraint("Block", 8),
    Sketcher.Constraint("Coincident", 0, 2, 1, 1),
    Sketcher.Constraint("Coincident", 1, 2, 2, 1),
    Sketcher.Constraint("Coincident", 2, 2, 3, 1),
    Sketcher.Constraint("Coincident", 3, 2, 4, 1),
    Sketcher.Constraint("Coincident", 4, 2, 5, 1),
    Sketcher.Constraint("Coincident", 5, 2, 6, 1),
    Sketcher.Constraint("Coincident", 6, 2, 7, 1),
    Sketcher.Constraint("Coincident", 7, 2, 8, 1),
    Sketcher.Constraint("Coincident", 8, 2, 9, 1),
    Sketcher.Constraint("Coincident", 9, 2, 0, 1),
    Sketcher.Constraint("Horizontal", 2),
    Sketcher.Constraint("Horizontal", 4),
    Sketcher.Constraint("Horizontal", 6),
    Sketcher.Constraint("Horizontal", 2, 2, 5, 2),
    Sketcher.Constraint("Equal", 1, 7),
    Sketcher.Constraint("DistanceY", 1, 2, 3, 2, 3.5),
    Sketcher.Constraint("DistanceY", -1, 1, 1, 2, 1.592999),
    Sketcher.Constraint("DistanceX", 9, 2, 1, 2, 0.843999),
    Sketcher.Constraint("DistanceX", 2, 1, 2, 2, 0.34721),
    Sketcher.Constraint("DistanceX", 4, 2, 4, 1, 0.294508),
    Sketcher.Constraint("Distance", 3, 3.653929),
    Sketcher.Constraint("Distance", 5, 3.654152),
])
pad2 = doc.addObject("PartDesign::Pad", "Pad001")
body2.addObject(pad2)
pad2.Profile = sketch5
pad2.setExpression("Length", "Params.pad2_length")
pad2.Reversed = True
body3 = doc.addObject("PartDesign::Body", "Body002")

# Sketch on XY plane
sketch6 = doc.addObject("Sketcher::SketchObject", "Sketch005")
body3.addObject(sketch6)
sketch6.AttachmentSupport = (doc.getObject("XY_Plane002"), [""])
sketch6.MapMode = "FlatFace"
sketch6.addGeometry([
    Part.BSplineCurve([App.Vector(4.442426, 3.544505, 0), App.Vector(4.527004, 3.700734, 0), App.Vector(4.697672, 4.015988, 0), App.Vector(4.860802, 4.335208, 0), App.Vector(4.94309, 4.496232, 0)], [4, 1, 4], [0, 0.000532943, 0.001075417], False, 3, [1, 1, 1, 1, 1], False),  # 0
    Part.LineSegment(App.Vector(4.94309, 4.496232, 0), App.Vector(4.955491, 4.496232, 0)),  # 1
    Part.BSplineCurve([App.Vector(4.955491, 4.496232, 0), App.Vector(4.947675, 4.324464, 0), App.Vector(4.931898, 3.977689, 0), App.Vector(4.92955, 3.630562, 0), App.Vector(4.928365, 3.455377, 0)], [4, 1, 4], [0, 0.000515783, 0.001041295], False, 3, [1, 1, 1, 1, 1], False),  # 2
    Part.LineSegment(App.Vector(4.928365, 3.455377, 0), App.Vector(4.928365, 1.592999, 0)),  # 3
    Part.LineSegment(App.Vector(4.928365, 1.592999, 0), App.Vector(5.263949, 1.592999, 0)),  # 4
    Part.LineSegment(App.Vector(5.263949, 1.592999, 0), App.Vector(5.263949, 5.092999, 0)),  # 5
    Part.LineSegment(App.Vector(5.263949, 5.092999, 0), App.Vector(4.93069, 5.092999, 0)),  # 6
    Part.LineSegment(App.Vector(4.93069, 5.092999, 0), App.Vector(3.849534, 3.141493, 0)),  # 7
    Part.BSplineCurve([App.Vector(3.849534, 3.141493, 0), App.Vector(3.803851, 3.058165, 0), App.Vector(3.714167, 2.894577, 0), App.Vector(3.586032, 2.652218, 0), App.Vector(3.46457, 2.41856, 0), App.Vector(3.38745, 2.26503, 0), App.Vector(3.349645, 2.189766, 0)], [4, 1, 1, 1, 4], [0, 0.000285083, 0.000559669, 0.00082242, 0.001075094], False, 3, [1, 1, 1, 1, 1, 1, 1], False),  # 8
    Part.LineSegment(App.Vector(3.349645, 2.189766, 0), App.Vector(3.337244, 2.189766, 0)),  # 9
    Part.BSplineCurve([App.Vector(3.337244, 2.189766, 0), App.Vector(3.341389, 2.272682, 0), App.Vector(3.350025, 2.445436, 0), App.Vector(3.358001, 2.714674, 0), App.Vector(3.3638, 3.00403, 0), App.Vector(3.364176, 3.203492, 0), App.Vector(3.36437, 3.306573, 0)], [4, 1, 1, 1, 4], [0, 0.000249054, 0.000518896, 0.00080803, 0.001117268], False, 3, [1, 1, 1, 1, 1, 1, 1], False),  # 10
    Part.LineSegment(App.Vector(3.36437, 3.306573, 0), App.Vector(3.36437, 5.092999, 0)),  # 11
    Part.LineSegment(App.Vector(3.36437, 5.092999, 0), App.Vector(3.028786, 5.092999, 0)),  # 12
    Part.LineSegment(App.Vector(3.028786, 5.092999, 0), App.Vector(3.028786, 1.592999, 0)),  # 13
    Part.LineSegment(App.Vector(3.028786, 1.592999, 0), App.Vector(3.362045, 1.592999, 0)),  # 14
    Part.LineSegment(App.Vector(3.362045, 1.592999, 0), App.Vector(4.442426, 3.544505, 0)),  # 15
], False)
sketch6.addConstraint([
    Sketcher.Constraint("Block", 0),
    Sketcher.Constraint("Block", 2),
    Sketcher.Constraint("Block", 8),
    Sketcher.Constraint("Block", 10),
    Sketcher.Constraint("Coincident", 0, 2, 1, 1),
    Sketcher.Constraint("Coincident", 1, 2, 2, 1),
    Sketcher.Constraint("Coincident", 2, 2, 3, 1),
    Sketcher.Constraint("Coincident", 3, 2, 4, 1),
    Sketcher.Constraint("Coincident", 4, 2, 5, 1),
    Sketcher.Constraint("Coincident", 5, 2, 6, 1),
    Sketcher.Constraint("Coincident", 6, 2, 7, 1),
    Sketcher.Constraint("Coincident", 7, 2, 8, 1),
    Sketcher.Constraint("Coincident", 8, 2, 9, 1),
    Sketcher.Constraint("Coincident", 9, 2, 10, 1),
    Sketcher.Constraint("Coincident", 10, 2, 11, 1),
    Sketcher.Constraint("Coincident", 11, 2, 12, 1),
    Sketcher.Constraint("Coincident", 12, 2, 13, 1),
    Sketcher.Constraint("Coincident", 13, 2, 14, 1),
    Sketcher.Constraint("Coincident", 14, 2, 15, 1),
    Sketcher.Constraint("Coincident", 15, 2, 0, 1),
    Sketcher.Constraint("Vertical", 3),
    Sketcher.Constraint("Horizontal", 4),
    Sketcher.Constraint("Vertical", 5),
    Sketcher.Constraint("Horizontal", 6),
    Sketcher.Constraint("Vertical", 11),
    Sketcher.Constraint("Horizontal", 12),
    Sketcher.Constraint("Vertical", 13),
    Sketcher.Constraint("Horizontal", 14),
    Sketcher.Constraint("Horizontal", 6, 2, 11, 2),
    Sketcher.Constraint("Horizontal", 4, 2, 13, 2),
    Sketcher.Constraint("Equal", 4, 12),
    Sketcher.Constraint("Equal", 6, 14),
    Sketcher.Constraint("DistanceY", 5, 1, 5, 2, 3.5),
    Sketcher.Constraint("DistanceY", -1, 1, 3, 2, 1.592999),
    Sketcher.Constraint("DistanceX", 6, 2, 6, 1, 0.33326),
    Sketcher.Constraint("DistanceX", 6, 2, 1, 2, 0.024801),
])
sketch6.setExpression("Constraints[32]", "Params.sketch6_height")
pad3 = doc.addObject("PartDesign::Pad", "Pad002")
body3.addObject(pad3)
pad3.Profile = sketch6
pad3.setExpression("Length", "Params.pad3_length")
pad3.Reversed = True
body4 = doc.addObject("PartDesign::Body", "Body003")

# Sketch on XY plane
sketch7 = doc.addObject("Sketcher::SketchObject", "Sketch006")
body4.addObject(sketch7)
sketch7.AttachmentSupport = (doc.getObject("XY_Plane003"), [""])
sketch7.MapMode = "FlatFace"
sketch7.addGeometry([
    Part.LineSegment(App.Vector(5.429029, 5.092999, 0), App.Vector(6.551261, 1.592999, 0)),  # 0
    Part.LineSegment(App.Vector(6.551261, 1.592999, 0), App.Vector(6.841119, 1.592999, 0)),  # 1
    Part.LineSegment(App.Vector(6.841119, 1.592999, 0), App.Vector(7.963352, 5.092999, 0)),  # 2
    Part.LineSegment(App.Vector(7.963352, 5.092999, 0), App.Vector(7.599091, 5.092999, 0)),  # 3
    Part.LineSegment(App.Vector(7.599091, 5.092999, 0), App.Vector(7.269707, 4.038969, 0)),  # 4
    Part.LineSegment(App.Vector(7.269707, 4.038969, 0), App.Vector(6.118799, 4.038969, 0)),  # 5
    Part.LineSegment(App.Vector(6.118799, 4.038969, 0), App.Vector(5.789414, 5.092999, 0)),  # 6
    Part.LineSegment(App.Vector(5.789414, 5.092999, 0), App.Vector(5.429029, 5.092999, 0)),  # 7
    Part.LineSegment(App.Vector(6.701615, 2.137064, 0), App.Vector(6.69309, 2.137064, 0)),  # 8
    Part.BSplineCurve([App.Vector(6.69309, 2.137064, 0), App.Vector(6.66306, 2.243557, 0), App.Vector(6.604319, 2.451865, 0), App.Vector(6.514977, 2.756062, 0), App.Vector(6.428523, 3.045598, 0), App.Vector(6.369845, 3.233006, 0), App.Vector(6.34123, 3.324398, 0)], [4, 1, 1, 1, 4], [0, 0.000331935, 0.000649291, 0.000951125, 0.001238423], False, 3, [1, 1, 1, 1, 1, 1, 1], False),  # 9
    Part.LineSegment(App.Vector(6.34123, 3.324398, 0), App.Vector(6.238152, 3.654558, 0)),  # 10
    Part.LineSegment(App.Vector(6.238152, 3.654558, 0), App.Vector(7.150353, 3.654558, 0)),  # 11
    Part.LineSegment(App.Vector(7.150353, 3.654558, 0), App.Vector(7.047275, 3.324398, 0)),  # 12
    Part.BSplineCurve([App.Vector(7.047275, 3.324398, 0), App.Vector(7.018669, 3.231711, 0), App.Vector(6.960267, 3.042484, 0), App.Vector(6.874495, 2.75176, 0), App.Vector(6.787564, 2.448751, 0), App.Vector(6.730624, 2.242261, 0), App.Vector(6.701615, 2.137064, 0)], [4, 1, 1, 1, 4], [0, 0.000291001, 0.000594099, 0.00090932, 0.001236686], False, 3, [1, 1, 1, 1, 1, 1, 1], False),  # 13
], False)
sketch7.addConstraint([
    Sketcher.Constraint("Block", 9),
    Sketcher.Constraint("Block", 13),
    Sketcher.Constraint("Coincident", 0, 2, 1, 1),
    Sketcher.Constraint("Coincident", 1, 2, 2, 1),
    Sketcher.Constraint("Coincident", 2, 2, 3, 1),
    Sketcher.Constraint("Coincident", 3, 2, 4, 1),
    Sketcher.Constraint("Coincident", 4, 2, 5, 1),
    Sketcher.Constraint("Coincident", 5, 2, 6, 1),
    Sketcher.Constraint("Coincident", 6, 2, 7, 1),
    Sketcher.Constraint("Coincident", 7, 2, 0, 1),
    Sketcher.Constraint("Coincident", 8, 2, 9, 1),
    Sketcher.Constraint("Coincident", 9, 2, 10, 1),
    Sketcher.Constraint("Coincident", 10, 2, 11, 1),
    Sketcher.Constraint("Coincident", 11, 2, 12, 1),
    Sketcher.Constraint("Coincident", 12, 2, 13, 1),
    Sketcher.Constraint("Coincident", 13, 2, 8, 1),
    Sketcher.Constraint("Horizontal", 1),
    Sketcher.Constraint("Horizontal", 3),
    Sketcher.Constraint("Horizontal", 5),
    Sketcher.Constraint("Horizontal", 7),
    Sketcher.Constraint("Horizontal", 11),
    Sketcher.Constraint("Horizontal", 3, 2, 6, 2),
    Sketcher.Constraint("Equal", 0, 2),
    Sketcher.Constraint("Equal", 4, 6),
    Sketcher.Constraint("Equal", 10, 12),
    Sketcher.Constraint("DistanceY", 1, 2, 2, 2, 3.5),
    Sketcher.Constraint("DistanceX", 11, 1, 11, 2, 0.912201),
    Sketcher.Constraint("DistanceY", -1, 1, 0, 2, 1.592999),
    Sketcher.Constraint("DistanceX", 1, 1, 1, 2, 0.289858),
    Sketcher.Constraint("DistanceX", 3, 2, 3, 1, 0.36426),
    Sketcher.Constraint("DistanceX", -1, 1, 5, 2, 6.118799),
    Sketcher.Constraint("DistanceX", 5, 2, 5, 1, 1.150908),
    Sketcher.Constraint("DistanceX", 7, 2, 7, 1, 0.360385),
    Sketcher.Constraint("DistanceX", -1, 1, 2, 2, 7.963352),
    Sketcher.Constraint("DistanceY", -1, 1, 4, 2, 4.038969),
    Sketcher.Constraint("DistanceY", 10, 2, 5, 2, 0.384411),
])
pad4 = doc.addObject("PartDesign::Pad", "Pad003")
body4.addObject(pad4)
pad4.Profile = sketch7
pad4.setExpression("Length", "Params.pad4_length")
pad4.Reversed = True
body5 = doc.addObject("PartDesign::Body", "Body004")

# Sketch on XY plane
sketch8 = doc.addObject("Sketcher::SketchObject", "Sketch007")
body5.addObject(sketch8)
sketch8.AttachmentSupport = (doc.getObject("XY_Plane004"), [""])
sketch8.MapMode = "FlatFace"
sketch8.addGeometry([
    Part.BSplineCurve([App.Vector(9.072408, 4.548933, 0), App.Vector(9.122803, 4.357036, 0), App.Vector(9.22436, 3.970319, 0), App.Vector(9.335136, 3.586141, 0), App.Vector(9.390942, 3.3926, 0)], [4, 1, 4], [0, 0.000595189, 0.001199442], False, 3, [1, 1, 1, 1, 1], False),  # 0
    Part.LineSegment(App.Vector(9.390942, 3.3926, 0), App.Vector(9.916407, 1.592999, 0)),  # 1
    Part.LineSegment(App.Vector(9.916407, 1.592999, 0), App.Vector(10.263617, 1.592999, 0)),  # 2
    Part.LineSegment(App.Vector(10.263617, 1.592999, 0), App.Vector(9.214237, 5.092999, 0)),  # 3
    Part.LineSegment(App.Vector(9.214237, 5.092999, 0), App.Vector(8.919729, 5.092999, 0)),  # 4
    Part.LineSegment(App.Vector(8.919729, 5.092999, 0), App.Vector(7.869574, 1.592999, 0)),  # 5
    Part.LineSegment(App.Vector(7.869574, 1.592999, 0), App.Vector(8.217559, 1.592999, 0)),  # 6
    Part.LineSegment(App.Vector(8.217559, 1.592999, 0), App.Vector(8.743024, 3.3926, 0)),  # 7
    Part.BSplineCurve([App.Vector(8.743024, 3.3926, 0), App.Vector(8.799406, 3.586123, 0), App.Vector(8.911305, 3.970195, 0), App.Vector(9.013287, 4.357019, 0), App.Vector(9.063883, 4.548933, 0)], [4, 1, 4], [0, 0.000604679, 0.001200068], False, 3, [1, 1, 1, 1, 1], False),  # 8
    Part.LineSegment(App.Vector(9.063883, 4.548933, 0), App.Vector(9.072408, 4.548933, 0)),  # 9
], False)
sketch8.addConstraint([
    Sketcher.Constraint("Block", 0),
    Sketcher.Constraint("Block", 8),
    Sketcher.Constraint("Coincident", 0, 2, 1, 1),
    Sketcher.Constraint("Coincident", 1, 2, 2, 1),
    Sketcher.Constraint("Coincident", 2, 2, 3, 1),
    Sketcher.Constraint("Coincident", 3, 2, 4, 1),
    Sketcher.Constraint("Coincident", 4, 2, 5, 1),
    Sketcher.Constraint("Coincident", 5, 2, 6, 1),
    Sketcher.Constraint("Coincident", 6, 2, 7, 1),
    Sketcher.Constraint("Coincident", 7, 2, 8, 1),
    Sketcher.Constraint("Coincident", 8, 2, 9, 1),
    Sketcher.Constraint("Coincident", 9, 2, 0, 1),
    Sketcher.Constraint("Horizontal", 2),
    Sketcher.Constraint("Horizontal", 4),
    Sketcher.Constraint("Horizontal", 6),
    Sketcher.Constraint("Horizontal", 2, 2, 5, 2),
    Sketcher.Constraint("Equal", 1, 7),
    Sketcher.Constraint("DistanceY", 1, 2, 3, 2, 3.5),
    Sketcher.Constraint("DistanceY", -1, 1, 1, 2, 1.592999),
    Sketcher.Constraint("DistanceX", 9, 2, 1, 2, 0.843999),
    Sketcher.Constraint("DistanceX", 2, 1, 2, 2, 0.34721),
    Sketcher.Constraint("DistanceX", 4, 2, 4, 1, 0.294508),
    Sketcher.Constraint("Distance", 3, 3.653929),
    Sketcher.Constraint("Distance", 5, 3.654152),
])
pad5 = doc.addObject("PartDesign::Pad", "Pad004")
body5.addObject(pad5)
pad5.Profile = sketch8
pad5.setExpression("Length", "Params.pad5_length")
pad5.Reversed = True

doc.recompute()
